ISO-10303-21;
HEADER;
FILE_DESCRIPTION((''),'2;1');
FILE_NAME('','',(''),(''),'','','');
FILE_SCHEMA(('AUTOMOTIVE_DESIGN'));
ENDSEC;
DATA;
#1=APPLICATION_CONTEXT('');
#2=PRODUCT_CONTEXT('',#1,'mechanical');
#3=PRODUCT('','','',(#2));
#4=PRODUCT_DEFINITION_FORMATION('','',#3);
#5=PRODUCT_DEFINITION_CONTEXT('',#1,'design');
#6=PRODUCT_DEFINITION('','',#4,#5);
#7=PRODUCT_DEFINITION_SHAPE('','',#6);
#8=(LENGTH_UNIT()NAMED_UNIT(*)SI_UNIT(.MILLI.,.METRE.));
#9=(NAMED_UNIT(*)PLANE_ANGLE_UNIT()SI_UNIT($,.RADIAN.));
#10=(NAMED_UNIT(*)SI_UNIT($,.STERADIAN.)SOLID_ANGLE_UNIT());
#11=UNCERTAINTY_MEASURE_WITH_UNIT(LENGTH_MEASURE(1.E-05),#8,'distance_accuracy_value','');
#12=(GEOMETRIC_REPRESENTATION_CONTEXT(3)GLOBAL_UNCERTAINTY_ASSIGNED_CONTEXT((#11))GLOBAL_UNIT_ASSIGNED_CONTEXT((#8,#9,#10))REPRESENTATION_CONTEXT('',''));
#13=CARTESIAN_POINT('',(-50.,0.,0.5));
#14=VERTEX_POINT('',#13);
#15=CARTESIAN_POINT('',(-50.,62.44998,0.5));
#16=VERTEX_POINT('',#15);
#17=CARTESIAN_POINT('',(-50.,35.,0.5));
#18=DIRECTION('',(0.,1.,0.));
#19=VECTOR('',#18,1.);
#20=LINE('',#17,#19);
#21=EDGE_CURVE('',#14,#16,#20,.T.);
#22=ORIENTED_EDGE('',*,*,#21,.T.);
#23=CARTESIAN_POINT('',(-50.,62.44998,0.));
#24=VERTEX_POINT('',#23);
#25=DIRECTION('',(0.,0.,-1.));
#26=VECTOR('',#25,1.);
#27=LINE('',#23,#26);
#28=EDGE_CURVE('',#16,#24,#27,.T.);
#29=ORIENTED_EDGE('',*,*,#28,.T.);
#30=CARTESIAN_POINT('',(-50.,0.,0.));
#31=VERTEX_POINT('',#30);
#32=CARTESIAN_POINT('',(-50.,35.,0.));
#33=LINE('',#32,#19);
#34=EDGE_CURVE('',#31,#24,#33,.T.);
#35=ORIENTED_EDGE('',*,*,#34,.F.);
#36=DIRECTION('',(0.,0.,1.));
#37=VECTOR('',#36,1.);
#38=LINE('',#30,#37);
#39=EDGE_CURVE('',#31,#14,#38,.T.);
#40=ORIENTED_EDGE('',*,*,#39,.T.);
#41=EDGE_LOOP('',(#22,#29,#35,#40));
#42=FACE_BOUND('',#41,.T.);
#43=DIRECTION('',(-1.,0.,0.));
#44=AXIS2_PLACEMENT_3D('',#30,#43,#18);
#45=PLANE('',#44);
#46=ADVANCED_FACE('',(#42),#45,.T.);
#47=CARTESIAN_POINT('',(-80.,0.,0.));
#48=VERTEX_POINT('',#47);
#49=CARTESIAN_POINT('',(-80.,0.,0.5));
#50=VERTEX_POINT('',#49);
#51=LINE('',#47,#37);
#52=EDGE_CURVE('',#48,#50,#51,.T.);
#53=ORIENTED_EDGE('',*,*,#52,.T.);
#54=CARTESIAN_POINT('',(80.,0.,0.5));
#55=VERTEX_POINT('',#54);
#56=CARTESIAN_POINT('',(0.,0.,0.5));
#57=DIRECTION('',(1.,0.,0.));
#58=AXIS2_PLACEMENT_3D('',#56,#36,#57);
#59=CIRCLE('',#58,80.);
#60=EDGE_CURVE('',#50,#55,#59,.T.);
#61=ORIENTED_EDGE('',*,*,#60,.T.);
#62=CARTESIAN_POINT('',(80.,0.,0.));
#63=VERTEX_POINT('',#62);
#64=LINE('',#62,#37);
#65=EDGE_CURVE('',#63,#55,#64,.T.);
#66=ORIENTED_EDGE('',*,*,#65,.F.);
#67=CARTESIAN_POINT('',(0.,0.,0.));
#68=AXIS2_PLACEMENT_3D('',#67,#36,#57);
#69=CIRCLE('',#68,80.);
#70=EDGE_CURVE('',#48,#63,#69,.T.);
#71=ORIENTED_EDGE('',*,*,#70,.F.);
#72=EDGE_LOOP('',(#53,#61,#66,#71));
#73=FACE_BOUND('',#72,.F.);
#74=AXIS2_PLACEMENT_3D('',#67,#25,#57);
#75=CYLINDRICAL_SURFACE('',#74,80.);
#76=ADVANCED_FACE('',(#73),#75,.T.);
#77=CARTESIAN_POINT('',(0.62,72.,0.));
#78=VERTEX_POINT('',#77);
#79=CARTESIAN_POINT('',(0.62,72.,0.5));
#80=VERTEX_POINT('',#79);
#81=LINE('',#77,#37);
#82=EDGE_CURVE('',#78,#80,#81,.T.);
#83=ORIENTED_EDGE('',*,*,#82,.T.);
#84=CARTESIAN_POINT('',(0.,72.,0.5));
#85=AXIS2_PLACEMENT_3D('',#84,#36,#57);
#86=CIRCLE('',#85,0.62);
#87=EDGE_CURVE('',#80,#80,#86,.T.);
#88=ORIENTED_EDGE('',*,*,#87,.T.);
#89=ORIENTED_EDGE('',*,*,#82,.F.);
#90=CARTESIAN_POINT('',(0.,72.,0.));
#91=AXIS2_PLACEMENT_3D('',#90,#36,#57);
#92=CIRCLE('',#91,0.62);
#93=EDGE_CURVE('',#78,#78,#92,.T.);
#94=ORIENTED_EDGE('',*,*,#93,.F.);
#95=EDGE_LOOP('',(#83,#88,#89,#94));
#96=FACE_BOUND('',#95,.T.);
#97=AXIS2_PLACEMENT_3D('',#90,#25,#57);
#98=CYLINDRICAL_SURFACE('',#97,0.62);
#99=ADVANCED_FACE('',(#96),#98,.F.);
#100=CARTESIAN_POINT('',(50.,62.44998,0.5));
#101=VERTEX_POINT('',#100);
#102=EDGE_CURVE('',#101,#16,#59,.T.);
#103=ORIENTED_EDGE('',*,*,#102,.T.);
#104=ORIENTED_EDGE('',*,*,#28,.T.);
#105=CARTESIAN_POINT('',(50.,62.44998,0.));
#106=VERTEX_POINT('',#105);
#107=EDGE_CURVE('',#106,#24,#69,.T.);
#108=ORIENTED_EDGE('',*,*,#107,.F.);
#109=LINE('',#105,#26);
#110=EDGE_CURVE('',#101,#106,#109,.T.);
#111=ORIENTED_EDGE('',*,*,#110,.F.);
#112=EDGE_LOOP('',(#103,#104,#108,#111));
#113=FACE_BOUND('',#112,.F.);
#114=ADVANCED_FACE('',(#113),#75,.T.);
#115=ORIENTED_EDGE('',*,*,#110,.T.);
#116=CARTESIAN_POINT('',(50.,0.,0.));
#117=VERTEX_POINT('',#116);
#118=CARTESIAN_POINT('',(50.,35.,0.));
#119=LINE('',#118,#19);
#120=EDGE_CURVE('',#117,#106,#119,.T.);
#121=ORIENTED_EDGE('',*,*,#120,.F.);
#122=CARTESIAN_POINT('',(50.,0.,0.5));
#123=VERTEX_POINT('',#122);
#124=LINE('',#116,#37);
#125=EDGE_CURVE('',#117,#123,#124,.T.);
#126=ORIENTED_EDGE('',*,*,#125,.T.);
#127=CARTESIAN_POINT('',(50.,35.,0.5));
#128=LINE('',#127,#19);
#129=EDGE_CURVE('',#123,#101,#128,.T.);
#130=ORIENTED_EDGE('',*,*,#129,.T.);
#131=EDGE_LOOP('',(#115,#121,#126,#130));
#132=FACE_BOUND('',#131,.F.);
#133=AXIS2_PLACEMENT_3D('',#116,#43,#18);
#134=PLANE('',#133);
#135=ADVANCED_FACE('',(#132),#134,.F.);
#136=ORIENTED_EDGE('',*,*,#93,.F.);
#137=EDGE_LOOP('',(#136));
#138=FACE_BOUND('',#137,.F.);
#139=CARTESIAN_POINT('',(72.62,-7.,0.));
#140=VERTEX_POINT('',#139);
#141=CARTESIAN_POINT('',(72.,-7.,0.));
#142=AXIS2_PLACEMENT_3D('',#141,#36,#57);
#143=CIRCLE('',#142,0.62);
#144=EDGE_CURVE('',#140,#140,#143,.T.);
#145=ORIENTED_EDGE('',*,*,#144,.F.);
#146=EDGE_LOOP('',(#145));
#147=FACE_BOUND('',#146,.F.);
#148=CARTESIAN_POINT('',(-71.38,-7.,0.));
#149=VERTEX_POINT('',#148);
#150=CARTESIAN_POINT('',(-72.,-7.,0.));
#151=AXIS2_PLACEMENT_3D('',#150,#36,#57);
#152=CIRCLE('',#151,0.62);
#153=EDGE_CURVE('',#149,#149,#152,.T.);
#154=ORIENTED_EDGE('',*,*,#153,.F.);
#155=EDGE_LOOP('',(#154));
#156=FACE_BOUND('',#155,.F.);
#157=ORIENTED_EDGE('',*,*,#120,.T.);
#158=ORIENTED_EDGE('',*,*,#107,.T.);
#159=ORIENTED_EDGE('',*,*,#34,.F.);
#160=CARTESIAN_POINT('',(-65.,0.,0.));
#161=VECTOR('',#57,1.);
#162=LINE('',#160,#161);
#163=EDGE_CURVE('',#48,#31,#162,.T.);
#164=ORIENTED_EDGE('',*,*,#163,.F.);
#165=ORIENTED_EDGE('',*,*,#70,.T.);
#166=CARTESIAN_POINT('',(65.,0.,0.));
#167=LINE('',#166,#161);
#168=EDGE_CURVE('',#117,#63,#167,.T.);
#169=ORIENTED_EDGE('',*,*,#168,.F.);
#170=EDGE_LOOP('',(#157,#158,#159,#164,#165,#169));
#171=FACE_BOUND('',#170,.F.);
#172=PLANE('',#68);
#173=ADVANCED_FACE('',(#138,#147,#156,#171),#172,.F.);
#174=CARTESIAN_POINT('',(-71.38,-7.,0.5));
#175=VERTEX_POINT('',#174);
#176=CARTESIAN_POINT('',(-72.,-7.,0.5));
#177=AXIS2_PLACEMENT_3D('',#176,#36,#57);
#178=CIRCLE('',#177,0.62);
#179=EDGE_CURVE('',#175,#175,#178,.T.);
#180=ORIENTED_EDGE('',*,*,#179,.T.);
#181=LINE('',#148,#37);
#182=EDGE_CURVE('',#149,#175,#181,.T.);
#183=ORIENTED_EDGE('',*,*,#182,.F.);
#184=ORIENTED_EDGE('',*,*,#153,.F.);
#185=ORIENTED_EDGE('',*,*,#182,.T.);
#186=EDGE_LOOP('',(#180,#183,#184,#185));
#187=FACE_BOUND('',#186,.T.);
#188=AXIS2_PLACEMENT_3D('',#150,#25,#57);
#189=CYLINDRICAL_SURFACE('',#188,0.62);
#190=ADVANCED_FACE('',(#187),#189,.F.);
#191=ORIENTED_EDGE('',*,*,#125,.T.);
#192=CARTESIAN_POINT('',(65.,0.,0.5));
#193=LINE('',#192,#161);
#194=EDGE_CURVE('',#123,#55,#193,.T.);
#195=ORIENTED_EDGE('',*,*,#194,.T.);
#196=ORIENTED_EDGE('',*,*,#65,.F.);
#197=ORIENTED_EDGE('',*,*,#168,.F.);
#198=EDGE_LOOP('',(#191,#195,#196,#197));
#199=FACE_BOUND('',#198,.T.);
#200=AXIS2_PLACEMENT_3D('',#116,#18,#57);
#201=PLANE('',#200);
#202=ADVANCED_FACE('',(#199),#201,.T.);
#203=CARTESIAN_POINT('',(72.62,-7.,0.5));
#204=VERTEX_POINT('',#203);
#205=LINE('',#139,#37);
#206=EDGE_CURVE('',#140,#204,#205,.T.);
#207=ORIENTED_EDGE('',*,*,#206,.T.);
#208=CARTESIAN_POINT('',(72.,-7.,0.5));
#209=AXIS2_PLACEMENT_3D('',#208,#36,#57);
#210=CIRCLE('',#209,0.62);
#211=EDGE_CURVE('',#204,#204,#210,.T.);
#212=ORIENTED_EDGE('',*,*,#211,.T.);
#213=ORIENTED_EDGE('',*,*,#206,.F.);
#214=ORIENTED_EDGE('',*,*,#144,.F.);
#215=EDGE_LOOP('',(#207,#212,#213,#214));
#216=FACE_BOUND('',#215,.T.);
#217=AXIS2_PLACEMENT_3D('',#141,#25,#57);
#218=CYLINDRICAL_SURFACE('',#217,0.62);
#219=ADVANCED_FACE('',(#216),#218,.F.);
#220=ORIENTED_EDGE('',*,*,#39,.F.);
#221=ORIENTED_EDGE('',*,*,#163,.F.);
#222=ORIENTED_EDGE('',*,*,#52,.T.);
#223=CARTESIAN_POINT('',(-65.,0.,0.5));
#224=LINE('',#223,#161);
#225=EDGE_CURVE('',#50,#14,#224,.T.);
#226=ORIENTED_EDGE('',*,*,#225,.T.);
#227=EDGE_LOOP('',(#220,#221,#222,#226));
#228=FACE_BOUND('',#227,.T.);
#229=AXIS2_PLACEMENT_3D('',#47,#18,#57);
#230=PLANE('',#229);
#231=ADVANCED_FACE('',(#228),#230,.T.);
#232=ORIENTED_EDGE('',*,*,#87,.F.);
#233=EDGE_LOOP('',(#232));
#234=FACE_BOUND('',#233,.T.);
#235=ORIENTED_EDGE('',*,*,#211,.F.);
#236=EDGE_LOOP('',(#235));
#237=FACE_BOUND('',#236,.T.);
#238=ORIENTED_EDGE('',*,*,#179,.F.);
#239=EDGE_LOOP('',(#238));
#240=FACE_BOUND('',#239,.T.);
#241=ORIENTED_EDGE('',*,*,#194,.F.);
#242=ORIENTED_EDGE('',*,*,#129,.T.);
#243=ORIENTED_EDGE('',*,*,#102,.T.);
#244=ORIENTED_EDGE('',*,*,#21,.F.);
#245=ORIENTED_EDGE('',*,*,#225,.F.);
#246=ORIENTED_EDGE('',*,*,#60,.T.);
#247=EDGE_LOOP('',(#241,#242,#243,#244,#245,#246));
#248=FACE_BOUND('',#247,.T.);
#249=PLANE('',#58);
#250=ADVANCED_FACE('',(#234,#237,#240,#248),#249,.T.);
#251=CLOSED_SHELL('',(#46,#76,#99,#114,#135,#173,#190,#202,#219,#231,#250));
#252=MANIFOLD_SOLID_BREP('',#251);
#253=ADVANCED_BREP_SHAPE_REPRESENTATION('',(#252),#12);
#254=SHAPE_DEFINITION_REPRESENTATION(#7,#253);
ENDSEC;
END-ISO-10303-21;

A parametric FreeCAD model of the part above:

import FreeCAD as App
import Part
import Sketcher
Q = App.Units.Quantity

doc = App.newDocument("Part")
body = doc.addObject("PartDesign::Body", "Body")

# Sketch on XY plane
sketch1 = doc.addObject("Sketcher::SketchObject", "Sketch")
body.addObject(sketch1)
sketch1.AttachmentSupport = (doc.XY_Plane, [""])
sketch1.MapMode = "FlatFace"
sketch1.addGeometry([
    Part.LineSegment(App.Vector(-80, 70, 0), App.Vector(-80, 0, 0)),
    Part.LineSegment(App.Vector(-80, 0, 0), App.Vector(-50, 0, 0)),
    Part.LineSegment(App.Vector(-50, 0, 0), App.Vector(-50, 70, 0)),
    Part.LineSegment(App.Vector(-50, 70, 0), App.Vector(-80, 70, 0)),
], False)
sketch1.addConstraint([
    Sketcher.Constraint("Coincident", 0, 2, 1, 1),
    Sketcher.Constraint("Coincident", 1, 2, 2, 1),
    Sketcher.Constraint("Coincident", 2, 2, 3, 1),
    Sketcher.Constraint("Coincident", 3, 2, 0, 1),
    Sketcher.Constraint("Vertical", 0),
    Sketcher.Constraint("Horizontal", 1),
    Sketcher.Constraint("Vertical", 2),
    Sketcher.Constraint("Horizontal", 3),
    Sketcher.Constraint("PointOnObject", 0, 2, -1),
    Sketcher.Constraint("DistanceX", 1, 1, 1, 2, Q("30 mm")),
    Sketcher.Constraint("DistanceY", 0, 2, 0, 1, Q("70 mm")),
    Sketcher.Constraint("DistanceX", 0, 2, -1, 1, Q("80 mm")),
])
pad1 = doc.addObject("PartDesign::Pad", "Pad")
body.addObject(pad1)
pad1.Profile = sketch1
pad1.Length = 0.5
body2 = doc.addObject("PartDesign::Body", "Body001")

# Sketch on XY plane
sketch2 = doc.addObject("Sketcher::SketchObject", "Sketch001")
body2.addObject(sketch2)
sketch2.AttachmentSupport = (doc.getObject("XY_Plane001"), [""])
sketch2.MapMode = "FlatFace"
sketch2.addGeometry([
    Part.LineSegment(App.Vector(50, 70, 0), App.Vector(50, 0, 0)),
    Part.LineSegment(App.Vector(50, 0, 0), App.Vector(80, 0, 0)),
    Part.LineSegment(App.Vector(80, 0, 0), App.Vector(80, 70, 0)),
    Part.LineSegment(App.Vector(80, 70, 0), App.Vector(50, 70, 0)),
], False)
sketch2.addConstraint([
    Sketcher.Constraint("Coincident", 0, 2, 1, 1),
    Sketcher.Constraint("Coincident", 1, 2, 2, 1),
    Sketcher.Constraint("Coincident", 2, 2, 3, 1),
    Sketcher.Constraint("Coincident", 3, 2, 0, 1),
    Sketcher.Constraint("Vertical", 0),
    Sketcher.Constraint("Horizontal", 1),
    Sketcher.Constraint("Vertical", 2),
    Sketcher.Constraint("Horizontal", 3),
    Sketcher.Constraint("PointOnObject", 0, 2, -1),
    Sketcher.Constraint("DistanceX", 1, 1, 1, 2, Q("30 mm")),
    Sketcher.Constraint("DistanceY", 0, 2, 0, 1, Q("70 mm")),
    Sketcher.Constraint("DistanceX", -1, 1, 0, 2, Q("50 mm")),
])
pad2 = doc.addObject("PartDesign::Pad", "Pad001")
body2.addObject(pad2)
pad2.Profile = sketch2
pad2.Length = 0.5
body3 = doc.addObject("PartDesign::Body", "Body002")

# Sketch on XY plane
sketch3 = doc.addObject("Sketcher::SketchObject", "Sketch002")
body3.addObject(sketch3)
sketch3.AttachmentSupport = (doc.getObject("XY_Plane002"), [""])
sketch3.MapMode = "FlatFace"
sketch3.addGeometry(Part.Circle(App.Vector(72, -7, 0), App.Vector(0, 0, 1), 0.6), False)
sketch3.addConstraint([
    Sketcher.Constraint("Diameter", 0, Q("1.24 mm")),
    Sketcher.Constraint("DistanceX", -1, 1, 0, 3, Q("72 mm")),
    Sketcher.Constraint("DistanceY", 0, 3, -1, 1, Q("7 mm")),
])
pad3 = doc.addObject("PartDesign::Pad", "Pad002")
body3.addObject(pad3)
pad3.Profile = sketch3
pad3.Length = 0.5
body4 = doc.addObject("PartDesign::Body", "Body003")

# Sketch on XY plane
sketch4 = doc.addObject("Sketcher::SketchObject", "Sketch003")
body4.addObject(sketch4)
sketch4.AttachmentSupport = (doc.getObject("XY_Plane003"), [""])
sketch4.MapMode = "FlatFace"
sketch4.addGeometry(Part.Circle(App.Vector(-72, -7, 0), App.Vector(0, 0, 1), 0.6), False)
sketch4.addConstraint([
    Sketcher.Constraint("Diameter", 0, Q("1.24 mm")),
    Sketcher.Constraint("DistanceX", 0, 3, -1, 1, Q("72 mm")),
    Sketcher.Constraint("DistanceY", 0, 3, -1, 1, Q("7 mm")),
])
pad4 = doc.addObject("PartDesign::Pad", "Pad003")
body4.addObject(pad4)
pad4.Profile = sketch4
pad4.Length = 0.5
body5 = doc.addObject("PartDesign::Body", "Body004")

# Sketch on XY plane
sketch5 = doc.addObject("Sketcher::SketchObject", "Sketch004")
body5.addObject(sketch5)
sketch5.AttachmentSupport = (doc.getObject("XY_Plane004"), [""])
sketch5.MapMode = "FlatFace"
sketch5.addGeometry(Part.Circle(App.Vector(0, 72, 0), App.Vector(0, 0, 1), 0.6), False)
sketch5.addConstraint([
    Sketcher.Constraint("PointOnObject", 0, 3, -2),
    Sketcher.Constraint("Diameter", 0, Q("1.24 mm")),
    Sketcher.Constraint("DistanceY", -1, 1, 0, 3, Q("72 mm")),
])
pad5 = doc.addObject("PartDesign::Pad", "Pad004")
body5.addObject(pad5)
pad5.Profile = sketch5
pad5.Length = 0.5
body6 = doc.addObject("PartDesign::Body", "Body005")

# Sketch on XY plane
sketch6 = doc.addObject("Sketcher::SketchObject", "Sketch005")
body6.addObject(sketch6)
sketch6.AttachmentSupport = (doc.getObject("XY_Plane005"), [""])
sketch6.MapMode = "FlatFace"
sketch6.addGeometry(Part.Circle(App.Vector(0, 0, 0), App.Vector(0, 0, 1), 80), False)
sketch6.addConstraint([
    Sketcher.Constraint("Coincident", 0, 3, -1, 1),
    Sketcher.Constraint("Diameter", 0, Q("160 mm")),
])
pad6 = doc.addObject("PartDesign::Pad", "Pad005")
body6.addObject(pad6)
pad6.Profile = sketch6
pad6.Length = 0.5
doc.recompute()

boolean = doc.addObject("PartDesign::Boolean", "Boolean")
body6.addObject(boolean)
boolean.Type = "Cut"
boolean.addObjects([body5])
doc.recompute()

boolean2 = doc.addObject("PartDesign::Boolean", "Boolean001")
body6.addObject(boolean2)
boolean2.Type = "Cut"
boolean2.addObjects([body4])
doc.recompute()

boolean3 = doc.addObject("PartDesign::Boolean", "Boolean002")
body6.addObject(boolean3)
boolean3.Type = "Cut"
boolean3.addObjects([body3])
doc.recompute()

boolean4 = doc.addObject("PartDesign::Boolean", "Boolean003")
body6.addObject(boolean4)
boolean4.Type = "Cut"
boolean4.addObjects([body2])
doc.recompute()

boolean5 = doc.addObject("PartDesign::Boolean", "Boolean004")
body6.addObject(boolean5)
boolean5.Type = "Cut"
boolean5.addObjects([body])

doc.recompute()
